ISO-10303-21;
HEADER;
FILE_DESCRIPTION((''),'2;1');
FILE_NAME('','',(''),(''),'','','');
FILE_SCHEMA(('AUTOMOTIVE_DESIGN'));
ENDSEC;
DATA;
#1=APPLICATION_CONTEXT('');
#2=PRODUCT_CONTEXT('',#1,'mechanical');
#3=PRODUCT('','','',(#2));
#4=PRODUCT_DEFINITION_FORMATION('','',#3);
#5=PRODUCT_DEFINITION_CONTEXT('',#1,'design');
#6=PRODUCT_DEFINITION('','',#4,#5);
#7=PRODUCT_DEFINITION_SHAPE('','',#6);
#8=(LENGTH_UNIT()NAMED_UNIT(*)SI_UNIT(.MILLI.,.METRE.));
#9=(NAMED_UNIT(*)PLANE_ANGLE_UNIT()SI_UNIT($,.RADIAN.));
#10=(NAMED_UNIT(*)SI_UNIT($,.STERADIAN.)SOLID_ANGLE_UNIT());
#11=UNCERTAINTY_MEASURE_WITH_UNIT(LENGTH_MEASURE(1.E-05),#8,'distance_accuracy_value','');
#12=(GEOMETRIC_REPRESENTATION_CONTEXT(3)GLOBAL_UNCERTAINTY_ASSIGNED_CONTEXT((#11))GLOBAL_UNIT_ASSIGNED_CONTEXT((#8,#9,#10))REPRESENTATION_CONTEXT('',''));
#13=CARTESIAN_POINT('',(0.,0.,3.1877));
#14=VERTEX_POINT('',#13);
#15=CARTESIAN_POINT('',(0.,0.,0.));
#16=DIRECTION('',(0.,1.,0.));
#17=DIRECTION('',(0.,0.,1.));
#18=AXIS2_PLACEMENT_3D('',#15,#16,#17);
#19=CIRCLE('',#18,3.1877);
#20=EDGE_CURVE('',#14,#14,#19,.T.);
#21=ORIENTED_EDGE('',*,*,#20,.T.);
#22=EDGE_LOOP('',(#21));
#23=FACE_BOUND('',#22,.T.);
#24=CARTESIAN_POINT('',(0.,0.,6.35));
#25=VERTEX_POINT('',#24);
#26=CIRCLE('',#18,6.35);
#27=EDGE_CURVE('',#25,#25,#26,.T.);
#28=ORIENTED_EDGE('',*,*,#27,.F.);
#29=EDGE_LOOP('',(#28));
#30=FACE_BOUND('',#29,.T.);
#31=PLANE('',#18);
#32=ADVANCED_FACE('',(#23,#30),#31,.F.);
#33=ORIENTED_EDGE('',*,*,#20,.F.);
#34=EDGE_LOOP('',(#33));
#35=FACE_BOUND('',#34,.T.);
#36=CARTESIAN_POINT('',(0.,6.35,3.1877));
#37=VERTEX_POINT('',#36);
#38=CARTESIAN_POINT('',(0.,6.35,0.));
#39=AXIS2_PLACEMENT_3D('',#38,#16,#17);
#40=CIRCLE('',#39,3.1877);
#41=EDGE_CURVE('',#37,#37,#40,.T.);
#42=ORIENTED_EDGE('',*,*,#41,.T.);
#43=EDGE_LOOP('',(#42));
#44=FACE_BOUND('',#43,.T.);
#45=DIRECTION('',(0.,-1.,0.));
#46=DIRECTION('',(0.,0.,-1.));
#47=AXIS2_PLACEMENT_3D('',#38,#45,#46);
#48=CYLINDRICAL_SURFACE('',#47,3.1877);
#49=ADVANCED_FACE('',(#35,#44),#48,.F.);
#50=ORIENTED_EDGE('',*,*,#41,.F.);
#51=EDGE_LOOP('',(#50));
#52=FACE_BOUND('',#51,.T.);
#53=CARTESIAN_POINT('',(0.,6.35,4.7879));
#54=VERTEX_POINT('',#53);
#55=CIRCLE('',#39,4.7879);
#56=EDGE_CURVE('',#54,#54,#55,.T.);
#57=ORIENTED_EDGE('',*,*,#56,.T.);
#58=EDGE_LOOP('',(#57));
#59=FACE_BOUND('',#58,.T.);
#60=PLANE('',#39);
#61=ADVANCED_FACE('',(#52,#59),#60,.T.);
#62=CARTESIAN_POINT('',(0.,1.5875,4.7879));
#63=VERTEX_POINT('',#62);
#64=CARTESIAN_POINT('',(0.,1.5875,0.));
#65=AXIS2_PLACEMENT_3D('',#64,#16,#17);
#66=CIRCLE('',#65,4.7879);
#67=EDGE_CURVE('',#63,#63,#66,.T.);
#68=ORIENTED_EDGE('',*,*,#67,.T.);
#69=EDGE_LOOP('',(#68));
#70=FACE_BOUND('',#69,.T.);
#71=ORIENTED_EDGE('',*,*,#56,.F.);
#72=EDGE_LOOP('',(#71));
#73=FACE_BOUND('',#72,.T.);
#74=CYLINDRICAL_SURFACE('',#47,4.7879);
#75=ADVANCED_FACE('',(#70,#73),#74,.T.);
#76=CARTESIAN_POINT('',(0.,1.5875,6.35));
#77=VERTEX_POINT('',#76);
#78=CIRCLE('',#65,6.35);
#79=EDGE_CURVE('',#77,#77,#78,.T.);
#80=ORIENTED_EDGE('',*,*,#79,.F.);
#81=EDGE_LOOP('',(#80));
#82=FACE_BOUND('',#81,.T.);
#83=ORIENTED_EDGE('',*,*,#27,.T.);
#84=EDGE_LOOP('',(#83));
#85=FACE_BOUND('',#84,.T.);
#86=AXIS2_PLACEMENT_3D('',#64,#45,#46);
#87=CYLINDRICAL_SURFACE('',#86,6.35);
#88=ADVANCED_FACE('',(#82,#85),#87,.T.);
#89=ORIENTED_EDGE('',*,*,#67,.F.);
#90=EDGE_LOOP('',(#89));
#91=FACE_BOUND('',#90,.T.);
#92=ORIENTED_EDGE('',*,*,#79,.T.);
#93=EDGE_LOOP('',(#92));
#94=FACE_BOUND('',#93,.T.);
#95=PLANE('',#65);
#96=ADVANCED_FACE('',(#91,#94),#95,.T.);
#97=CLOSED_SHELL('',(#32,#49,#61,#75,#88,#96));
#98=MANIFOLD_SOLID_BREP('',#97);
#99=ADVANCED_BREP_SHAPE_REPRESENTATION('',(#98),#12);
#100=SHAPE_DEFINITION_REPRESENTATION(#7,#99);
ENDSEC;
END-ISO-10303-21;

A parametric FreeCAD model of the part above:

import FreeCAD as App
import Part
import Sketcher
from FreeCAD import Vector
Q = App.Units.Quantity

doc = App.newDocument("Part")
params = doc.addObject("Spreadsheet::Sheet", "Params")
for row, (alias, value) in enumerate([
    ("sketch1_diameter", "0.377 in"),
    ("sketch1_diameter2", "0.251 in"),
    ("pad1_length", "0.25 in"),
    ("sketch2_diameter", "0.5 in"),
    ("sketch2_diameter2", "0.377 in"),
    ("pad2_length", "0.0625 in"),
], start=1):
    params.set(f"A{row}", alias)
    params.set(f"B{row}", "=" + value)
    params.setAlias(f"B{row}", alias)

body = doc.addObject("PartDesign::Body", "Body")

# Sketch on XZ plane
sketch1 = doc.addObject("Sketcher::SketchObject", "Sketch")
body.addObject(sketch1)
sketch1.AttachmentSupport = (doc.XZ_Plane, [""])
sketch1.MapMode = "FlatFace"
sketch1.addGeometry([
    Part.Circle(Vector(0, 0, 0), Vector(0, 0, 1), 4.7879),
    Part.Circle(Vector(0, 0, 0), Vector(0, 0, 1), 3.1877),
], False)
sketch1.addConstraint([
    Sketcher.Constraint("Coincident", 0, 3, -1, 1),
    Sketcher.Constraint("Coincident", 1, 3, -1, 1),
    Sketcher.Constraint("Diameter", 0, Q("0.377 in")),
    Sketcher.Constraint("Diameter", 1, Q("0.251 in")),
])
sketch1.setExpression("Constraints[2]", "Params.sketch1_diameter")
sketch1.setExpression("Constraints[3]", "Params.sketch1_diameter2")
pad1 = doc.addObject("PartDesign::Pad", "Pad")
body.addObject(pad1)
pad1.Profile = sketch1
pad1.setExpression("Length", "Params.pad1_length")
pad1.Reversed = True

# Sketch on XZ plane
sketch2 = doc.addObject("Sketcher::SketchObject", "Sketch001")
body.addObject(sketch2)
sketch2.AttachmentSupport = (doc.XZ_Plane, [""])
sketch2.MapMode = "FlatFace"
sketch2.addGeometry([
    Part.Circle(Vector(0, 0, 0), Vector(0, 0, 1), 6.35),
    Part.Circle(Vector(0, 0, 0), Vector(0, 0, 1), 4.7879),
], False)
sketch2.addConstraint([
    Sketcher.Constraint("Coincident", 0, 3, -1, 1),
    Sketcher.Constraint("Coincident", 1, 3, -1, 1),
    Sketcher.Constraint("Diameter", 0, Q("0.5 in")),
    Sketcher.Constraint("Diameter", 1, Q("0.377 in")),
])
sketch2.setExpression("Constraints[2]", "Params.sketch2_diameter")
sketch2.setExpression("Constraints[3]", "Params.sketch2_diameter2")
pad2 = doc.addObject("PartDesign::Pad", "Pad001")
body.addObject(pad2)
pad2.Profile = sketch2
pad2.setExpression("Length", "Params.pad2_length")
pad2.Reversed = True

doc.recompute()
